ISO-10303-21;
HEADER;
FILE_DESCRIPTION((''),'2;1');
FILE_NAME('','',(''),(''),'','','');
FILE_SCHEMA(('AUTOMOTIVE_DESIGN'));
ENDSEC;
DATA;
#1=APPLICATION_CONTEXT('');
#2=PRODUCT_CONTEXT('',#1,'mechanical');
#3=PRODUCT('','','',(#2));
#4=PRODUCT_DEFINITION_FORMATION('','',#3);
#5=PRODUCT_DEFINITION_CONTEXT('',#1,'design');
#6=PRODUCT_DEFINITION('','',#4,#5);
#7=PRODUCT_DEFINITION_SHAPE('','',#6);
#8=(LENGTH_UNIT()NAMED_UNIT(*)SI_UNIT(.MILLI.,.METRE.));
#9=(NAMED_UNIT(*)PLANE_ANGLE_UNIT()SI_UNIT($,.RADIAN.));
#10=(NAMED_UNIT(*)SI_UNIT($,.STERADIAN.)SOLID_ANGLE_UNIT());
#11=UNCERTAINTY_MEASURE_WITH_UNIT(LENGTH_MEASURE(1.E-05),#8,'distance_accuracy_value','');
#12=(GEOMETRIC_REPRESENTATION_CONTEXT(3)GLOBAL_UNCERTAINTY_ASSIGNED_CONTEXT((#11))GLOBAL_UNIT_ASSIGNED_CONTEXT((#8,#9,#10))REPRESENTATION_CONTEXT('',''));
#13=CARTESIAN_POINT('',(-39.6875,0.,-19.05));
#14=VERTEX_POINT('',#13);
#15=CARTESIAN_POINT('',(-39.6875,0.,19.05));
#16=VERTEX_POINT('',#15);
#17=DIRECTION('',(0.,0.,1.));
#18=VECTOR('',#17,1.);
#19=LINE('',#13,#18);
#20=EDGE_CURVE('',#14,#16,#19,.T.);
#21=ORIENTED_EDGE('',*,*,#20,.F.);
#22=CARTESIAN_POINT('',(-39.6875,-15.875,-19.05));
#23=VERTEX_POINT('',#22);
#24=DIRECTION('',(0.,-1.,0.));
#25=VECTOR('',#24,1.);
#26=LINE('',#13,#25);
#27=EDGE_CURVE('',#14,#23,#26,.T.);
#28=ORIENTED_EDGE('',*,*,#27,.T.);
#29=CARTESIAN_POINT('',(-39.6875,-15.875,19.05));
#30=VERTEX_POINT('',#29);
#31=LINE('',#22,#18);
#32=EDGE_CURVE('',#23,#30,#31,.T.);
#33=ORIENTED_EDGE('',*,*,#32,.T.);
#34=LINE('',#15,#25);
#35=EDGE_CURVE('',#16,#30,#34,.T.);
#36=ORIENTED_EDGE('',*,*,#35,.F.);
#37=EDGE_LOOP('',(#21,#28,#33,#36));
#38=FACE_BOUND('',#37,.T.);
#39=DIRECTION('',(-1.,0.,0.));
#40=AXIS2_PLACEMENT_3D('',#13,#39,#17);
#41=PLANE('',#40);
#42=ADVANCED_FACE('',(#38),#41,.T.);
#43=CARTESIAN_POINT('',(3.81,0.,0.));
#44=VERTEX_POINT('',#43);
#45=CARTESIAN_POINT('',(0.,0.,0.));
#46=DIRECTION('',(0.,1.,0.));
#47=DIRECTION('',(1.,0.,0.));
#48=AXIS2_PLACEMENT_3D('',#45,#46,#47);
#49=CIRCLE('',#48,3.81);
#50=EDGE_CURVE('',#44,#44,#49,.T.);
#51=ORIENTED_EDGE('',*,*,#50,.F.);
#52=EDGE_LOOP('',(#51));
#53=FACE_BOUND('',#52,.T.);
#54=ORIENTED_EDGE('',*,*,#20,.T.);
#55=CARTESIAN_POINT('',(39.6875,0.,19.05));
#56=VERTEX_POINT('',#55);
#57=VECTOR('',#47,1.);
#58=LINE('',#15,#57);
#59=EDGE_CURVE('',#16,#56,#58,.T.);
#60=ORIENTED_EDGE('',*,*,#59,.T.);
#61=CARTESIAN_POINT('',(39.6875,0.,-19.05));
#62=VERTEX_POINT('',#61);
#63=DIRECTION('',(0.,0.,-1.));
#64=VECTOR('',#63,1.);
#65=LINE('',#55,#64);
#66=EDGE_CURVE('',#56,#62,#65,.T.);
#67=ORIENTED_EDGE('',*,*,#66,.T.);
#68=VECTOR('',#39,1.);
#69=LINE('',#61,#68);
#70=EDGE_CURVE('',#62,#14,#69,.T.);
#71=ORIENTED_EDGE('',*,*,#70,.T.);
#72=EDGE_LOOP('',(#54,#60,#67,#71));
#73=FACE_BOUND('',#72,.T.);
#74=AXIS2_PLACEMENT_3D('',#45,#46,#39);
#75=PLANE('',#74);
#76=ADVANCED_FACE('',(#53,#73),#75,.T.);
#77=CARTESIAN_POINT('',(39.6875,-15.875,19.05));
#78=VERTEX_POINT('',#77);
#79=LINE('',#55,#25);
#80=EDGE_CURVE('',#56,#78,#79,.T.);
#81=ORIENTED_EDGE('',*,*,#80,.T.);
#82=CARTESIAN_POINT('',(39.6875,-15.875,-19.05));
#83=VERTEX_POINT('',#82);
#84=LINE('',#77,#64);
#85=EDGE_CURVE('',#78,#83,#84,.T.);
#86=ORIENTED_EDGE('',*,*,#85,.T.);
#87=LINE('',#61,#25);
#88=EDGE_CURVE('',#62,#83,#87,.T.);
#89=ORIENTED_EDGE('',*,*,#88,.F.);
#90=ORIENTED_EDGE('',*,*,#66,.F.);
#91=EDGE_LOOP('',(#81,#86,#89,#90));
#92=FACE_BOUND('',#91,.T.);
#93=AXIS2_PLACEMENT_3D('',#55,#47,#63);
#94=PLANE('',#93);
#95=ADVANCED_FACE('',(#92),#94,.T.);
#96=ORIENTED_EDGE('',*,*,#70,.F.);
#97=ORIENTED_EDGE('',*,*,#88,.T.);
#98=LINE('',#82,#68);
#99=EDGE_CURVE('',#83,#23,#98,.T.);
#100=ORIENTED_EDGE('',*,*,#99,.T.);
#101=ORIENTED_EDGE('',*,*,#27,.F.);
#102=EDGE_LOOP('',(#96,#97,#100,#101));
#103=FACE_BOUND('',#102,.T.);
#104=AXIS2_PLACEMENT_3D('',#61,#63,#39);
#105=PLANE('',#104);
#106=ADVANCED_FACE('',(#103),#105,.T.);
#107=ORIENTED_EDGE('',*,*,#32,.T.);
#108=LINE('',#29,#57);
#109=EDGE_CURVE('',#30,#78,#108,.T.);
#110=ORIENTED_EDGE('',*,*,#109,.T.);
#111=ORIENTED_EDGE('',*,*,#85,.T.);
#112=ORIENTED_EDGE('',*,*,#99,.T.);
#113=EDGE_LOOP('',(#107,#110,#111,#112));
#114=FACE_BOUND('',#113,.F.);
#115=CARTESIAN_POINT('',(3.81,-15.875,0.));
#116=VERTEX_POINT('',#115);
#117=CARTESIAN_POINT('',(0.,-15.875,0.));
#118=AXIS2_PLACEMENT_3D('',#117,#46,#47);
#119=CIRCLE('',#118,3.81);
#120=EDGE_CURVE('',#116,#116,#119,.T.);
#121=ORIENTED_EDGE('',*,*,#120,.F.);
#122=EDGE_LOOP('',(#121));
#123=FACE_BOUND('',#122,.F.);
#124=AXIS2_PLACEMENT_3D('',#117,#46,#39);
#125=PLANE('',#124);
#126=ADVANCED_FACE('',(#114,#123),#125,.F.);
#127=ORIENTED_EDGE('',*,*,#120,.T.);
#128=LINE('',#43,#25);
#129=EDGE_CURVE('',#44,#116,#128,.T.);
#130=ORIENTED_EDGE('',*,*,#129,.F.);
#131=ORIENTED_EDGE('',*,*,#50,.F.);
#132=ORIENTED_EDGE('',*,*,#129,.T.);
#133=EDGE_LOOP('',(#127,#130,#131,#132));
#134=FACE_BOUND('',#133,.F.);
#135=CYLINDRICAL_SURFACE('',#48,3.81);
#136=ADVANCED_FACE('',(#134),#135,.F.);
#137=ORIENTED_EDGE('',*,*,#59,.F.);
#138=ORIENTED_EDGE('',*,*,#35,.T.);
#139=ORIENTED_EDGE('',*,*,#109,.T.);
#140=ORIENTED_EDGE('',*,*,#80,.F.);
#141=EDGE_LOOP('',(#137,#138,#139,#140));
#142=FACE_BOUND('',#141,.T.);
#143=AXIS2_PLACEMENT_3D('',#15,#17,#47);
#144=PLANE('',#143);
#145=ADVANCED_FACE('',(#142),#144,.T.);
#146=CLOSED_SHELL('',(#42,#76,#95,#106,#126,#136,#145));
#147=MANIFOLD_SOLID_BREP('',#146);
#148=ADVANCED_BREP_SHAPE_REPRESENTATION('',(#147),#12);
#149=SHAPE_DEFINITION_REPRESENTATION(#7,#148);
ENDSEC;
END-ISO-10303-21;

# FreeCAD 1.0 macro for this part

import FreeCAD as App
import Part
import Sketcher
from FreeCAD import Vector
Q = App.Units.Quantity

doc = App.newDocument("Part")
body = doc.addObject("PartDesign::Body", "Body")

sketch1 = doc.addObject("Sketcher::SketchObject", "Sketch")
body.addObject(sketch1)
sketch1.AttachmentSupport = (doc.XZ_Plane, [""])
sketch1.MapMode = "FlatFace"
sketch1.addGeometry([
    Part.LineSegment(Vector(-39.6875, -19.05, 0), Vector(-39.6875, 19.05, 0)),
    Part.LineSegment(Vector(-39.6875, 19.05, 0), Vector(39.6875, 19.05, 0)),
    Part.LineSegment(Vector(39.6875, 19.05, 0), Vector(39.6875, -19.05, 0)),
    Part.LineSegment(Vector(39.6875, -19.05, 0), Vector(-39.6875, -19.05, 0)),
], False)
sketch1.addConstraint([
    Sketcher.Constraint("Coincident", 0, 2, 1, 1),
    Sketcher.Constraint("Coincident", 1, 2, 2, 1),
    Sketcher.Constraint("Coincident", 2, 2, 3, 1),
    Sketcher.Constraint("Coincident", 3, 2, 0, 1),
    Sketcher.Constraint("Vertical", 0),
    Sketcher.Constraint("Horizontal", 1),
    Sketcher.Constraint("Vertical", 2),
    Sketcher.Constraint("Horizontal", 3),
    Sketcher.Constraint("Symmetric", 0, 2, 2, 2, -1, 1),
    Sketcher.Constraint("DistanceY", 0, 1, 0, 2, Q("1.5 in")),
    Sketcher.Constraint("DistanceX", 1, 1, 1, 2, Q("3.125 in")),
])
pad1 = doc.addObject("PartDesign::Pad", "Pad")
body.addObject(pad1)
pad1.Profile = sketch1
pad1.Length = Q("0.625 in")

sketch2 = doc.addObject("Sketcher::SketchObject", "Sketch001")
body.addObject(sketch2)
sketch2.AttachmentSupport = (doc.XZ_Plane, [""])
sketch2.MapMode = "FlatFace"
sketch2.addGeometry(Part.Circle(Vector(0, 0, 0), Vector(0, 0, 1), 3.81), False)
sketch2.addConstraint([
    Sketcher.Constraint("Coincident", 0, 3, -1, 1),
    Sketcher.Constraint("Diameter", 0, Q("0.3 in")),
])
pocket1 = doc.addObject("PartDesign::Pocket", "Pocket")
body.addObject(pocket1)
pocket1.Profile = sketch2
pocket1.Type = "ThroughAll"
pocket1.Reversed = True

doc.recompute()
